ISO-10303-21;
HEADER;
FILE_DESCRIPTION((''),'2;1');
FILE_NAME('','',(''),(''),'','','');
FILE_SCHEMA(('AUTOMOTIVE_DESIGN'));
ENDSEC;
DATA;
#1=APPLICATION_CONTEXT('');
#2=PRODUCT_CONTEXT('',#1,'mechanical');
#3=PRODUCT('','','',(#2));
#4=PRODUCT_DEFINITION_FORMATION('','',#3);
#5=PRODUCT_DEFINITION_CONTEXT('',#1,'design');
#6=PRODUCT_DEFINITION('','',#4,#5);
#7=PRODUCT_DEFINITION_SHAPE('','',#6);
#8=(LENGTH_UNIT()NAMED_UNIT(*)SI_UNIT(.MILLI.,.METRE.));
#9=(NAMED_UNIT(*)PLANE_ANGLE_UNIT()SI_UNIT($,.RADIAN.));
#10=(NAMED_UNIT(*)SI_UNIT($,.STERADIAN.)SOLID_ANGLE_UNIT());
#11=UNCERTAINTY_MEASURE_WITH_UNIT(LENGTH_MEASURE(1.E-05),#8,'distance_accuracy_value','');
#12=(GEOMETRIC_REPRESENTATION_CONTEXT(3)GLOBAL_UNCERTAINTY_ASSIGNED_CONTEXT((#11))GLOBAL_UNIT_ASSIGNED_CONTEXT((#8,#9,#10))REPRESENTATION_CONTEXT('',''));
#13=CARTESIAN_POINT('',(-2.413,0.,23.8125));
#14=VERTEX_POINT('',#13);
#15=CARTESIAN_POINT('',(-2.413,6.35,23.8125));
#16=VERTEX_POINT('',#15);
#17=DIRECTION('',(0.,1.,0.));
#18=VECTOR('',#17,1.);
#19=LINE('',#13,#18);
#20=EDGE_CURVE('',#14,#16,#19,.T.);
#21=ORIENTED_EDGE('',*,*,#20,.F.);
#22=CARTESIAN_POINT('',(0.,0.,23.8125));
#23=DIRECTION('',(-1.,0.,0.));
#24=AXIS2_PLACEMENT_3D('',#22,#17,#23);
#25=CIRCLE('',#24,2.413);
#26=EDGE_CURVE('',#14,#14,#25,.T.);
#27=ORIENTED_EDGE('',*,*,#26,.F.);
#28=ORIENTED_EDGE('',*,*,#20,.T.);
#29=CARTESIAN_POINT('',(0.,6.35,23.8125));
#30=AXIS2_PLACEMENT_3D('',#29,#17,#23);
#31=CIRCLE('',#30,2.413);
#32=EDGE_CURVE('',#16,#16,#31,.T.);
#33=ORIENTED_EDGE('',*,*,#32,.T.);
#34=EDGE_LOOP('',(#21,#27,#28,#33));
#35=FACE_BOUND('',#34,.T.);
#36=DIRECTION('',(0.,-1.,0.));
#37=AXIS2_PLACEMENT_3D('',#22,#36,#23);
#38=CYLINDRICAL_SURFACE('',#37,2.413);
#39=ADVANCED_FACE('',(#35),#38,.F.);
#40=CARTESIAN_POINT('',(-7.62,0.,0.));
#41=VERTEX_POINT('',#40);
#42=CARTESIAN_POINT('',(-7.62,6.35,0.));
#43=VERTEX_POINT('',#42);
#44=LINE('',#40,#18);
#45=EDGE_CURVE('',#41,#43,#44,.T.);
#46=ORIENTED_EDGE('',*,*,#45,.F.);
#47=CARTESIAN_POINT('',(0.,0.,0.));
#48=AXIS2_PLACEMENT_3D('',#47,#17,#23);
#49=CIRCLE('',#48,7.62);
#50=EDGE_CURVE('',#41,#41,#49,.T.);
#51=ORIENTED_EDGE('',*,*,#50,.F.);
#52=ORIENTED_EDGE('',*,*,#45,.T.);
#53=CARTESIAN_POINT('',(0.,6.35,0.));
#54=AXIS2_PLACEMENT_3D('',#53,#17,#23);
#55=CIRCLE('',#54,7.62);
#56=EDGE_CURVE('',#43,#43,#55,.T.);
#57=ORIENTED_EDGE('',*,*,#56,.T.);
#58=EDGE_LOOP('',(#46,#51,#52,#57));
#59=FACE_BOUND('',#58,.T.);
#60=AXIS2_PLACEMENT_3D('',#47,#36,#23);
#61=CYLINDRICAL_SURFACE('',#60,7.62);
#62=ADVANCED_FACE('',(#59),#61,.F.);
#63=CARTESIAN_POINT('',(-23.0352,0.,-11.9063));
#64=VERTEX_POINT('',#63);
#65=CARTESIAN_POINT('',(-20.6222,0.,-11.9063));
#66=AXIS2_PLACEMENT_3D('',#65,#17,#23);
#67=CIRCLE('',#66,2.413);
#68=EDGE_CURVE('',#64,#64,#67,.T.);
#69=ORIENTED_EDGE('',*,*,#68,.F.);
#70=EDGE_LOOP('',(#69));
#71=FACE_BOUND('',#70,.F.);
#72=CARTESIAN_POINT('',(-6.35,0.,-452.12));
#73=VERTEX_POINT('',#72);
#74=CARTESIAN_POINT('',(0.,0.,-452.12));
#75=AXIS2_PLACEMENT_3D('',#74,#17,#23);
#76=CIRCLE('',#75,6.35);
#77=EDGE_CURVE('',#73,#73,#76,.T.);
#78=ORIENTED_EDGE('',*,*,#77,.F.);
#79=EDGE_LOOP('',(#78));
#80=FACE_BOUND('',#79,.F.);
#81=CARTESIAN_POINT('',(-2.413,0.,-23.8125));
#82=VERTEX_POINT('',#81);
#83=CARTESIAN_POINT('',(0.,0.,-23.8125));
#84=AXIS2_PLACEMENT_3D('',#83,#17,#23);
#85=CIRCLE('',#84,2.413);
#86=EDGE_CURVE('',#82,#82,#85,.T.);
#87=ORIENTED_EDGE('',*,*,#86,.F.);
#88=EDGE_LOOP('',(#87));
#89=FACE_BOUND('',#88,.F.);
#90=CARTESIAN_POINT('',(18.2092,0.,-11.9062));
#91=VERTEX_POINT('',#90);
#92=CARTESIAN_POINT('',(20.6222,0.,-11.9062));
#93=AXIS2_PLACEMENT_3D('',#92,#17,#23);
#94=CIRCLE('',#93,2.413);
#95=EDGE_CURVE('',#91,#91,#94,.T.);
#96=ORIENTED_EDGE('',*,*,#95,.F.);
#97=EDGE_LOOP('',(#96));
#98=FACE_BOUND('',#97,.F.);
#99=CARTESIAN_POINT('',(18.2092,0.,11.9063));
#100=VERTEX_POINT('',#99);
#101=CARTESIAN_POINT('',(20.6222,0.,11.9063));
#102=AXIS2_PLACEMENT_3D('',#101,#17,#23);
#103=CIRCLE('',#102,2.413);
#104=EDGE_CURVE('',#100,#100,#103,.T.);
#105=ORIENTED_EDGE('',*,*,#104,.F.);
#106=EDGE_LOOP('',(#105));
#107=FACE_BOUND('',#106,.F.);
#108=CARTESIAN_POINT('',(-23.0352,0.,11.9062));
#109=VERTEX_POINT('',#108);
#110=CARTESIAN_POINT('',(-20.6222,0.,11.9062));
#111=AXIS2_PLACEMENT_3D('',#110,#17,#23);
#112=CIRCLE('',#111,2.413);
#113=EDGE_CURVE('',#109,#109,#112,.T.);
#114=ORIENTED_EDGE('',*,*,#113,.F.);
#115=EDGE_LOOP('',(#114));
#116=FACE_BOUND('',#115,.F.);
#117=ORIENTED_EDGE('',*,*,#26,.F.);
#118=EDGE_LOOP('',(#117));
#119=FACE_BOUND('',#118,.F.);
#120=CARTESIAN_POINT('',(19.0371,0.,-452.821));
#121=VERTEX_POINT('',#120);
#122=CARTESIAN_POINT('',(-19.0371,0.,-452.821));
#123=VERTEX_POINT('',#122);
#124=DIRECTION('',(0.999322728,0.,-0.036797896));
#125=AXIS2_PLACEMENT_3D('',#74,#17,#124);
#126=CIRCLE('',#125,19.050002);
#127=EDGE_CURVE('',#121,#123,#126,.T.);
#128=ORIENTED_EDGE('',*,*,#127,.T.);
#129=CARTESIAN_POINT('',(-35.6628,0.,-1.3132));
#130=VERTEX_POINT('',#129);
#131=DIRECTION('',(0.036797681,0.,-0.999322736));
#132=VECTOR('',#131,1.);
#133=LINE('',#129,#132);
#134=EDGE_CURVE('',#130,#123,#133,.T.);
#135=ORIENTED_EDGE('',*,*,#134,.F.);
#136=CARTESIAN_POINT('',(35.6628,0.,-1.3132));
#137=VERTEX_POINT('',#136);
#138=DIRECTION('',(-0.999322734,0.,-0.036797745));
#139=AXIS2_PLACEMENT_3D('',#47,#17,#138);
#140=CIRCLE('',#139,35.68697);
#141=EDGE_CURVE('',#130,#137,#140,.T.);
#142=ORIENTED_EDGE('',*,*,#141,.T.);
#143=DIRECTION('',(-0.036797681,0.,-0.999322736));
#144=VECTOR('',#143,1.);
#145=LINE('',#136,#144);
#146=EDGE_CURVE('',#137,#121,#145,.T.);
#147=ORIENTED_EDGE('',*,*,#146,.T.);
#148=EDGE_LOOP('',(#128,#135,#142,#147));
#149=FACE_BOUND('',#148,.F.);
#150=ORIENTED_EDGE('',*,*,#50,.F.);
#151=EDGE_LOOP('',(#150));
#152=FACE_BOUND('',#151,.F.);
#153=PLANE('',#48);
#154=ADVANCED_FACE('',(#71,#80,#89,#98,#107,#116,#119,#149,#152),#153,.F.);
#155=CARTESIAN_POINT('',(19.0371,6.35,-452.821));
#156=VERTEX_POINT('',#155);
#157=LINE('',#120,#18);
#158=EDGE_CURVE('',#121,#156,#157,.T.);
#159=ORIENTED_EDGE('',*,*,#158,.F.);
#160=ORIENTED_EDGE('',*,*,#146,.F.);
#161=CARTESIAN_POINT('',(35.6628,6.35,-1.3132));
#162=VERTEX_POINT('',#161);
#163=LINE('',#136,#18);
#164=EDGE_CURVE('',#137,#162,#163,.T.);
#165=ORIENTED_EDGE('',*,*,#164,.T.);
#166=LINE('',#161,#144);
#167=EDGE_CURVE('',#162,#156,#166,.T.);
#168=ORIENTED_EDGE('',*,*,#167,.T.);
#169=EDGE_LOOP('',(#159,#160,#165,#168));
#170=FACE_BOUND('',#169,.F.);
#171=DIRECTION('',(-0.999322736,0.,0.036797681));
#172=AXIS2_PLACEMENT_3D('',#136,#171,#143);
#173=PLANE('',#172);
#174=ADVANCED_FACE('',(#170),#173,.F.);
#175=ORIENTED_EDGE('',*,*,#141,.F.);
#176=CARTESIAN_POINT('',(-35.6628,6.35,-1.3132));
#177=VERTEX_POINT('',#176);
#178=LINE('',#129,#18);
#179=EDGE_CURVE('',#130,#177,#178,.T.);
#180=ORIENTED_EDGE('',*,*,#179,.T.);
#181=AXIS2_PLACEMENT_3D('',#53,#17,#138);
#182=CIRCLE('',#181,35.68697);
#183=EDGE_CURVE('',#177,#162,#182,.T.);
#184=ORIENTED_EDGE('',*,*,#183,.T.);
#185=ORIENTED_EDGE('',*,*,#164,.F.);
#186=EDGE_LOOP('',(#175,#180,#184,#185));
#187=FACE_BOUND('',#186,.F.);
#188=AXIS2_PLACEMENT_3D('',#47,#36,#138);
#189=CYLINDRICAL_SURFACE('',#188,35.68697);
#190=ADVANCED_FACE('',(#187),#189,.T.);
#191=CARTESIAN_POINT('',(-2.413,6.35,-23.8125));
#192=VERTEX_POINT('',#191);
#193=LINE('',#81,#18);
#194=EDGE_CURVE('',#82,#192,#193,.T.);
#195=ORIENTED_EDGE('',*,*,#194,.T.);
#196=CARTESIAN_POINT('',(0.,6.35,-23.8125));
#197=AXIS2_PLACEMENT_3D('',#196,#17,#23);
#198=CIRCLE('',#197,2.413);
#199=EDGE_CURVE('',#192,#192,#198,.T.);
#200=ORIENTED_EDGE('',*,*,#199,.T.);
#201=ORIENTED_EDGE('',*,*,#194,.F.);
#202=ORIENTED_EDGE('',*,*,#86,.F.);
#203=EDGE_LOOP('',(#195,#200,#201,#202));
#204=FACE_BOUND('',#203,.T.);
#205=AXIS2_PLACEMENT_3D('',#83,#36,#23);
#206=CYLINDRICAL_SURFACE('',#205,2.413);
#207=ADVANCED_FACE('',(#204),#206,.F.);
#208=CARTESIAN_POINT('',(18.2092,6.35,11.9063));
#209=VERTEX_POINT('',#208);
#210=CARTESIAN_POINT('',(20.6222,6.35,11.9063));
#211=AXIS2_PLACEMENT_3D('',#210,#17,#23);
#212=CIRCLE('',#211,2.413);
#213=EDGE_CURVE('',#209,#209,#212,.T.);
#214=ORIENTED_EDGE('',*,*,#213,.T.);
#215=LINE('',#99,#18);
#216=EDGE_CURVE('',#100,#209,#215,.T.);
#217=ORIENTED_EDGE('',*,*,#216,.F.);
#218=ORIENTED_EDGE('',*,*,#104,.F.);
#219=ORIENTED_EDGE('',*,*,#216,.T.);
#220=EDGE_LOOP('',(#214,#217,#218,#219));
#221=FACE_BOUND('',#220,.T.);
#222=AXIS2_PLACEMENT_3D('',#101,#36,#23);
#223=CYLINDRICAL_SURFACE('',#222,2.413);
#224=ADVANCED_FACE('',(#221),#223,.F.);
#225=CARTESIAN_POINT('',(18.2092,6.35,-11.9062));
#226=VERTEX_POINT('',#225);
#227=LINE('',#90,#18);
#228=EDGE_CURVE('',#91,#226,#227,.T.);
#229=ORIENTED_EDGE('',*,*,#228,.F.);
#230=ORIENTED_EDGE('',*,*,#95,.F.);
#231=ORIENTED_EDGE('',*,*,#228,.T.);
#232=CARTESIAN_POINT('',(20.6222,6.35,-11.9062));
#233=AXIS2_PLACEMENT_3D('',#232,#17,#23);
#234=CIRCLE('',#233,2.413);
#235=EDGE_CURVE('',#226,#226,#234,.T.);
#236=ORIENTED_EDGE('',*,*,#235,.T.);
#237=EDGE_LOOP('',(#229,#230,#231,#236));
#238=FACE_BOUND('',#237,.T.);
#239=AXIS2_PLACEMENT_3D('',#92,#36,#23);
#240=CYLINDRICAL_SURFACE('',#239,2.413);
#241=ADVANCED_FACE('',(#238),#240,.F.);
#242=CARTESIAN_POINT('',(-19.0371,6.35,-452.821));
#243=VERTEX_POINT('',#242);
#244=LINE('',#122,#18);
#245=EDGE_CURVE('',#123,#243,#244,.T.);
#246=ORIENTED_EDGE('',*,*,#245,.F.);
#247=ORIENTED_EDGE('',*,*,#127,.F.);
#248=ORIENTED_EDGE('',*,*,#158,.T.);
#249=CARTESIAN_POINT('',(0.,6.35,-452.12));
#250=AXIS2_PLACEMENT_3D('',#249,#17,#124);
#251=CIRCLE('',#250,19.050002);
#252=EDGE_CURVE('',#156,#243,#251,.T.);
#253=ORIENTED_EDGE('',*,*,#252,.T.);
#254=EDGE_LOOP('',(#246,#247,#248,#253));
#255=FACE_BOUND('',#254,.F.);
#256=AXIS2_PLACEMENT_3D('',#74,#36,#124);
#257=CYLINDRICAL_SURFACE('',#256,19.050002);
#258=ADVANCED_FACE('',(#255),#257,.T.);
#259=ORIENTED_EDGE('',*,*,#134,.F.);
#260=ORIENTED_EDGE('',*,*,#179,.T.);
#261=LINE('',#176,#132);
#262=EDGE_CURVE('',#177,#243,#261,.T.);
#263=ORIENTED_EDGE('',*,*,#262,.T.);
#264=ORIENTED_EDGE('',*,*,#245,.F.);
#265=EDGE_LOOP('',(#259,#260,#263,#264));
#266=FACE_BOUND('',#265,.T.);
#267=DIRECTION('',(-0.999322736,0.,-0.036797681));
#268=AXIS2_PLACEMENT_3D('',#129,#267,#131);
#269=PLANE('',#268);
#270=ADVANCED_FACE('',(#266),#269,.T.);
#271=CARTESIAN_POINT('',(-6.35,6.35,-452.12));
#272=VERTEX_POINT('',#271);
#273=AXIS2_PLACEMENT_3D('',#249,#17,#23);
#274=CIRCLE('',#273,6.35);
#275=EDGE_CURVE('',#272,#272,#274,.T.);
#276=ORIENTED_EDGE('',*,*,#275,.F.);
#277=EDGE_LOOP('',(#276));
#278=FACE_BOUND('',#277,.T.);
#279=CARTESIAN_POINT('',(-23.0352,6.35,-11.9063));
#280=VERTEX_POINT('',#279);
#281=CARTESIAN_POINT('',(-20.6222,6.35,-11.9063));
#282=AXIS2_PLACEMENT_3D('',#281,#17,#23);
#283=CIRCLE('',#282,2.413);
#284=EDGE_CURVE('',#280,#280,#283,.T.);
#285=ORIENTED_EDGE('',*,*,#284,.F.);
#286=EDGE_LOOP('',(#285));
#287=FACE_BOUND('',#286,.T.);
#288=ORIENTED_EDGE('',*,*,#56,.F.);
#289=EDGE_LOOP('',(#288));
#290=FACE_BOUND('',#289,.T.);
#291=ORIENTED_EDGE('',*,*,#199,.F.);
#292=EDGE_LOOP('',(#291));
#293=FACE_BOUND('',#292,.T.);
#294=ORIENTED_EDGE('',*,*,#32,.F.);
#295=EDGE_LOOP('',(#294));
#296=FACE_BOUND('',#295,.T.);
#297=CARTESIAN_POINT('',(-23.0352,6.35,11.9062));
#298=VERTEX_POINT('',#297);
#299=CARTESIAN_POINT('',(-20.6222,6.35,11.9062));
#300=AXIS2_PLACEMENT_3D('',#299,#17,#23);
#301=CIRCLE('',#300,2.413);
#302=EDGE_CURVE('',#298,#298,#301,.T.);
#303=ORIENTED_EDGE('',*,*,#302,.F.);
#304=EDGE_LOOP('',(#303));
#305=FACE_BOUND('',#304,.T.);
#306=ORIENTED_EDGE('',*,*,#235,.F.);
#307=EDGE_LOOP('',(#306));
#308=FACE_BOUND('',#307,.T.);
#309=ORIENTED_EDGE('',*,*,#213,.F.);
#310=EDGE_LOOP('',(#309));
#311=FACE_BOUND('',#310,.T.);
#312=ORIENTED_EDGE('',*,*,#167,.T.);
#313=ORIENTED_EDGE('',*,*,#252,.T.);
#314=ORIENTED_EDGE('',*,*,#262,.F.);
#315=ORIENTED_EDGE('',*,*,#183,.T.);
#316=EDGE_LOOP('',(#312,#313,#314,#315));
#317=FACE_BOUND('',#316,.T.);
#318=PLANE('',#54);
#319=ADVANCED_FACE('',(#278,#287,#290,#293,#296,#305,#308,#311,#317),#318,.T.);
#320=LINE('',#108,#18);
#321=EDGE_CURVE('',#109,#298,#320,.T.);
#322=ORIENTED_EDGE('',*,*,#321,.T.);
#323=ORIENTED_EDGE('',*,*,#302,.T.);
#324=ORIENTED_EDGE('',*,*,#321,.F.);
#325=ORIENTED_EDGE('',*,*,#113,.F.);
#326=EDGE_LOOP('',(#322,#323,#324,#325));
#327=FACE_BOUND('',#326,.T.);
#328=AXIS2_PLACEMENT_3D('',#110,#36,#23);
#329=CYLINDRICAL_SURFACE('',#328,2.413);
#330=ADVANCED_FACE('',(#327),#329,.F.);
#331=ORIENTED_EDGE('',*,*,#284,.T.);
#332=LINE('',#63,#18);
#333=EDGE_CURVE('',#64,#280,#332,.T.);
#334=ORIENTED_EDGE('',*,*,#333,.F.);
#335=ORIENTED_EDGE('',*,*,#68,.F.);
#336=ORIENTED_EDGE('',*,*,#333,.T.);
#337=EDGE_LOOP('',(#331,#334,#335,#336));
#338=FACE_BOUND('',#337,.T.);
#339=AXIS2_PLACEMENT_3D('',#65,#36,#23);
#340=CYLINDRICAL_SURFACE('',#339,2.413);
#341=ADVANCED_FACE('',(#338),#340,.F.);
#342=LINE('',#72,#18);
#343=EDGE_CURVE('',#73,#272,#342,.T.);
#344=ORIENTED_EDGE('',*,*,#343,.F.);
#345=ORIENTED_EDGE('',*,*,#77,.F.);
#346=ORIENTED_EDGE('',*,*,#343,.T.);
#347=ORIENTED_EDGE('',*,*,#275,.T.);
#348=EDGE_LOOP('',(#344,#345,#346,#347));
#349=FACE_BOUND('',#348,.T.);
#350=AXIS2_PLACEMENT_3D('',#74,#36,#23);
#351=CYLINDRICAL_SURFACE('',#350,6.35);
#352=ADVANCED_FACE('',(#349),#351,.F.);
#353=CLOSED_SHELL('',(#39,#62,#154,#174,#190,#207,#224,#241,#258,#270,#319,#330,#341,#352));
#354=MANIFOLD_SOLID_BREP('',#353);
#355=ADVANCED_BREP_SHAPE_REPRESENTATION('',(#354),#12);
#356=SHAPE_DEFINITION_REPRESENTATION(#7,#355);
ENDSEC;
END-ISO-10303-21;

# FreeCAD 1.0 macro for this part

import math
import FreeCAD as App
import Part
import Sketcher
from FreeCAD import Vector
Q = App.Units.Quantity

doc = App.newDocument("Part")
body = doc.addObject("PartDesign::Body", "Body")

sketch1 = body.newObject("Sketcher::SketchObject", "Sketch")
sketch1.AttachmentSupport = (doc.getObject("XZ_Plane"), [""])
sketch1.MapMode = "FlatFace"
sketch1.addGeometry(Part.LineSegment(Vector(-19, -452.8, 0), Vector(-35.7, -1.3, 0)), False)
sketch1.addGeometry(Part.ArcOfCircle(Part.Circle(Vector(0, 0, 0), Vector(0, 0, 1), 35.7), math.radians(-2), math.radians(182)), False)
sketch1.addGeometry(Part.LineSegment(Vector(35.7, -1.3, 0), Vector(19, -452.8, 0)), False)
sketch1.addGeometry(Part.ArcOfCircle(Part.Circle(Vector(0, -452.1, 0), Vector(0, 0, 1), 19.1), math.radians(-178), math.radians(-2)), False)
sketch1.addGeometry(Part.Circle(Vector(0, -452.1, 0), Vector(0, 0, 1), 6.3), False)
sketch1.addGeometry(Part.Circle(Vector(20.6, -11.9, 0), Vector(0, 0, 1), 2.4), False)
sketch1.addGeometry(Part.Circle(Vector(20.6, 11.9, 0), Vector(0, 0, 1), 2.4), False)
sketch1.addGeometry(Part.Circle(Vector(0, -23.8, 0), Vector(0, 0, 1), 2.4), False)
sketch1.addGeometry(Part.Circle(Vector(0, 0, 0), Vector(0, 0, 1), 7.6), False)
sketch1.addGeometry(Part.Circle(Vector(0, 23.8, 0), Vector(0, 0, 1), 2.4), False)
sketch1.addGeometry(Part.Circle(Vector(-20.6, -11.9, 0), Vector(0, 0, 1), 2.4), False)
sketch1.addGeometry(Part.Circle(Vector(-20.6, 11.9, 0), Vector(0, 0, 1), 2.4), False)
sketch1.addConstraint(Sketcher.Constraint("Tangent", 0, 2, 1, 2))
sketch1.addConstraint(Sketcher.Constraint("Tangent", 1, 1, 2, 1))
sketch1.addConstraint(Sketcher.Constraint("Tangent", 2, 2, 3, 2))
sketch1.addConstraint(Sketcher.Constraint("Tangent", 3, 1, 0, 1))
sketch1.addConstraint(Sketcher.Constraint("Coincident", 1, 3, -1, 1))
sketch1.addConstraint(Sketcher.Constraint("Coincident", 8, 3, -1, 1))
sketch1.addConstraint(Sketcher.Constraint("Coincident", 4, 3, 3, 3))
sketch1.addConstraint(Sketcher.Constraint("Equal", 5, 6))
sketch1.addConstraint(Sketcher.Constraint("Equal", 6, 7))
sketch1.addConstraint(Sketcher.Constraint("Equal", 7, 9))
sketch1.addConstraint(Sketcher.Constraint("Equal", 9, 10))
sketch1.addConstraint(Sketcher.Constraint("Equal", 10, 11))
sketch1.addConstraint(Sketcher.Constraint("Symmetric", 7, 3, 9, 3, -1, 1))
sketch1.addConstraint(Sketcher.Constraint("Symmetric", 6, 3, 10, 3, -1, 1))
sketch1.addConstraint(Sketcher.Constraint("Symmetric", 5, 3, 11, 3, -1, 1))
sketch1.addConstraint(Sketcher.Constraint("Symmetric", 5, 3, 10, 3, -2))
sketch1.addConstraint(Sketcher.Constraint("PointOnObject", 3, 3, -2))
sketch1.addConstraint(Sketcher.Constraint("PointOnObject", 7, 3, -2))
sketch1.addConstraint(Sketcher.Constraint("Diameter", 4, Q("0.5 in")))
sketch1.addConstraint(Sketcher.Constraint("Diameter", 8, Q("0.6 in")))
sketch1.addConstraint(Sketcher.Constraint("Diameter", 5, Q("0.19 in")))
sketch1.addConstraint(Sketcher.Constraint("DistanceY", 3, 3, -1, 1, Q("17.8 in")))
sketch1.addConstraint(Sketcher.Constraint("Radius", 3, Q("0.75 in")))
sketch1.addConstraint(Sketcher.Constraint("Radius", 1, Q("1.405 in")))
sketch1.addConstraint(Sketcher.Constraint("DistanceY", 7, 3, 9, 3, Q("1.875 in")))
sketch1.addConstraint(Sketcher.Constraint("DistanceY", 5, 3, -1, 1, Q("0.468748 in")))
sketch1.addConstraint(Sketcher.Constraint("DistanceX", -1, 1, 5, 3, Q("0.8119 in")))
pad1 = body.newObject("PartDesign::Pad", "Pad")
pad1.Profile = sketch1
pad1.Length = Q("0.25 in")
pad1.Reversed = True

doc.recompute()
